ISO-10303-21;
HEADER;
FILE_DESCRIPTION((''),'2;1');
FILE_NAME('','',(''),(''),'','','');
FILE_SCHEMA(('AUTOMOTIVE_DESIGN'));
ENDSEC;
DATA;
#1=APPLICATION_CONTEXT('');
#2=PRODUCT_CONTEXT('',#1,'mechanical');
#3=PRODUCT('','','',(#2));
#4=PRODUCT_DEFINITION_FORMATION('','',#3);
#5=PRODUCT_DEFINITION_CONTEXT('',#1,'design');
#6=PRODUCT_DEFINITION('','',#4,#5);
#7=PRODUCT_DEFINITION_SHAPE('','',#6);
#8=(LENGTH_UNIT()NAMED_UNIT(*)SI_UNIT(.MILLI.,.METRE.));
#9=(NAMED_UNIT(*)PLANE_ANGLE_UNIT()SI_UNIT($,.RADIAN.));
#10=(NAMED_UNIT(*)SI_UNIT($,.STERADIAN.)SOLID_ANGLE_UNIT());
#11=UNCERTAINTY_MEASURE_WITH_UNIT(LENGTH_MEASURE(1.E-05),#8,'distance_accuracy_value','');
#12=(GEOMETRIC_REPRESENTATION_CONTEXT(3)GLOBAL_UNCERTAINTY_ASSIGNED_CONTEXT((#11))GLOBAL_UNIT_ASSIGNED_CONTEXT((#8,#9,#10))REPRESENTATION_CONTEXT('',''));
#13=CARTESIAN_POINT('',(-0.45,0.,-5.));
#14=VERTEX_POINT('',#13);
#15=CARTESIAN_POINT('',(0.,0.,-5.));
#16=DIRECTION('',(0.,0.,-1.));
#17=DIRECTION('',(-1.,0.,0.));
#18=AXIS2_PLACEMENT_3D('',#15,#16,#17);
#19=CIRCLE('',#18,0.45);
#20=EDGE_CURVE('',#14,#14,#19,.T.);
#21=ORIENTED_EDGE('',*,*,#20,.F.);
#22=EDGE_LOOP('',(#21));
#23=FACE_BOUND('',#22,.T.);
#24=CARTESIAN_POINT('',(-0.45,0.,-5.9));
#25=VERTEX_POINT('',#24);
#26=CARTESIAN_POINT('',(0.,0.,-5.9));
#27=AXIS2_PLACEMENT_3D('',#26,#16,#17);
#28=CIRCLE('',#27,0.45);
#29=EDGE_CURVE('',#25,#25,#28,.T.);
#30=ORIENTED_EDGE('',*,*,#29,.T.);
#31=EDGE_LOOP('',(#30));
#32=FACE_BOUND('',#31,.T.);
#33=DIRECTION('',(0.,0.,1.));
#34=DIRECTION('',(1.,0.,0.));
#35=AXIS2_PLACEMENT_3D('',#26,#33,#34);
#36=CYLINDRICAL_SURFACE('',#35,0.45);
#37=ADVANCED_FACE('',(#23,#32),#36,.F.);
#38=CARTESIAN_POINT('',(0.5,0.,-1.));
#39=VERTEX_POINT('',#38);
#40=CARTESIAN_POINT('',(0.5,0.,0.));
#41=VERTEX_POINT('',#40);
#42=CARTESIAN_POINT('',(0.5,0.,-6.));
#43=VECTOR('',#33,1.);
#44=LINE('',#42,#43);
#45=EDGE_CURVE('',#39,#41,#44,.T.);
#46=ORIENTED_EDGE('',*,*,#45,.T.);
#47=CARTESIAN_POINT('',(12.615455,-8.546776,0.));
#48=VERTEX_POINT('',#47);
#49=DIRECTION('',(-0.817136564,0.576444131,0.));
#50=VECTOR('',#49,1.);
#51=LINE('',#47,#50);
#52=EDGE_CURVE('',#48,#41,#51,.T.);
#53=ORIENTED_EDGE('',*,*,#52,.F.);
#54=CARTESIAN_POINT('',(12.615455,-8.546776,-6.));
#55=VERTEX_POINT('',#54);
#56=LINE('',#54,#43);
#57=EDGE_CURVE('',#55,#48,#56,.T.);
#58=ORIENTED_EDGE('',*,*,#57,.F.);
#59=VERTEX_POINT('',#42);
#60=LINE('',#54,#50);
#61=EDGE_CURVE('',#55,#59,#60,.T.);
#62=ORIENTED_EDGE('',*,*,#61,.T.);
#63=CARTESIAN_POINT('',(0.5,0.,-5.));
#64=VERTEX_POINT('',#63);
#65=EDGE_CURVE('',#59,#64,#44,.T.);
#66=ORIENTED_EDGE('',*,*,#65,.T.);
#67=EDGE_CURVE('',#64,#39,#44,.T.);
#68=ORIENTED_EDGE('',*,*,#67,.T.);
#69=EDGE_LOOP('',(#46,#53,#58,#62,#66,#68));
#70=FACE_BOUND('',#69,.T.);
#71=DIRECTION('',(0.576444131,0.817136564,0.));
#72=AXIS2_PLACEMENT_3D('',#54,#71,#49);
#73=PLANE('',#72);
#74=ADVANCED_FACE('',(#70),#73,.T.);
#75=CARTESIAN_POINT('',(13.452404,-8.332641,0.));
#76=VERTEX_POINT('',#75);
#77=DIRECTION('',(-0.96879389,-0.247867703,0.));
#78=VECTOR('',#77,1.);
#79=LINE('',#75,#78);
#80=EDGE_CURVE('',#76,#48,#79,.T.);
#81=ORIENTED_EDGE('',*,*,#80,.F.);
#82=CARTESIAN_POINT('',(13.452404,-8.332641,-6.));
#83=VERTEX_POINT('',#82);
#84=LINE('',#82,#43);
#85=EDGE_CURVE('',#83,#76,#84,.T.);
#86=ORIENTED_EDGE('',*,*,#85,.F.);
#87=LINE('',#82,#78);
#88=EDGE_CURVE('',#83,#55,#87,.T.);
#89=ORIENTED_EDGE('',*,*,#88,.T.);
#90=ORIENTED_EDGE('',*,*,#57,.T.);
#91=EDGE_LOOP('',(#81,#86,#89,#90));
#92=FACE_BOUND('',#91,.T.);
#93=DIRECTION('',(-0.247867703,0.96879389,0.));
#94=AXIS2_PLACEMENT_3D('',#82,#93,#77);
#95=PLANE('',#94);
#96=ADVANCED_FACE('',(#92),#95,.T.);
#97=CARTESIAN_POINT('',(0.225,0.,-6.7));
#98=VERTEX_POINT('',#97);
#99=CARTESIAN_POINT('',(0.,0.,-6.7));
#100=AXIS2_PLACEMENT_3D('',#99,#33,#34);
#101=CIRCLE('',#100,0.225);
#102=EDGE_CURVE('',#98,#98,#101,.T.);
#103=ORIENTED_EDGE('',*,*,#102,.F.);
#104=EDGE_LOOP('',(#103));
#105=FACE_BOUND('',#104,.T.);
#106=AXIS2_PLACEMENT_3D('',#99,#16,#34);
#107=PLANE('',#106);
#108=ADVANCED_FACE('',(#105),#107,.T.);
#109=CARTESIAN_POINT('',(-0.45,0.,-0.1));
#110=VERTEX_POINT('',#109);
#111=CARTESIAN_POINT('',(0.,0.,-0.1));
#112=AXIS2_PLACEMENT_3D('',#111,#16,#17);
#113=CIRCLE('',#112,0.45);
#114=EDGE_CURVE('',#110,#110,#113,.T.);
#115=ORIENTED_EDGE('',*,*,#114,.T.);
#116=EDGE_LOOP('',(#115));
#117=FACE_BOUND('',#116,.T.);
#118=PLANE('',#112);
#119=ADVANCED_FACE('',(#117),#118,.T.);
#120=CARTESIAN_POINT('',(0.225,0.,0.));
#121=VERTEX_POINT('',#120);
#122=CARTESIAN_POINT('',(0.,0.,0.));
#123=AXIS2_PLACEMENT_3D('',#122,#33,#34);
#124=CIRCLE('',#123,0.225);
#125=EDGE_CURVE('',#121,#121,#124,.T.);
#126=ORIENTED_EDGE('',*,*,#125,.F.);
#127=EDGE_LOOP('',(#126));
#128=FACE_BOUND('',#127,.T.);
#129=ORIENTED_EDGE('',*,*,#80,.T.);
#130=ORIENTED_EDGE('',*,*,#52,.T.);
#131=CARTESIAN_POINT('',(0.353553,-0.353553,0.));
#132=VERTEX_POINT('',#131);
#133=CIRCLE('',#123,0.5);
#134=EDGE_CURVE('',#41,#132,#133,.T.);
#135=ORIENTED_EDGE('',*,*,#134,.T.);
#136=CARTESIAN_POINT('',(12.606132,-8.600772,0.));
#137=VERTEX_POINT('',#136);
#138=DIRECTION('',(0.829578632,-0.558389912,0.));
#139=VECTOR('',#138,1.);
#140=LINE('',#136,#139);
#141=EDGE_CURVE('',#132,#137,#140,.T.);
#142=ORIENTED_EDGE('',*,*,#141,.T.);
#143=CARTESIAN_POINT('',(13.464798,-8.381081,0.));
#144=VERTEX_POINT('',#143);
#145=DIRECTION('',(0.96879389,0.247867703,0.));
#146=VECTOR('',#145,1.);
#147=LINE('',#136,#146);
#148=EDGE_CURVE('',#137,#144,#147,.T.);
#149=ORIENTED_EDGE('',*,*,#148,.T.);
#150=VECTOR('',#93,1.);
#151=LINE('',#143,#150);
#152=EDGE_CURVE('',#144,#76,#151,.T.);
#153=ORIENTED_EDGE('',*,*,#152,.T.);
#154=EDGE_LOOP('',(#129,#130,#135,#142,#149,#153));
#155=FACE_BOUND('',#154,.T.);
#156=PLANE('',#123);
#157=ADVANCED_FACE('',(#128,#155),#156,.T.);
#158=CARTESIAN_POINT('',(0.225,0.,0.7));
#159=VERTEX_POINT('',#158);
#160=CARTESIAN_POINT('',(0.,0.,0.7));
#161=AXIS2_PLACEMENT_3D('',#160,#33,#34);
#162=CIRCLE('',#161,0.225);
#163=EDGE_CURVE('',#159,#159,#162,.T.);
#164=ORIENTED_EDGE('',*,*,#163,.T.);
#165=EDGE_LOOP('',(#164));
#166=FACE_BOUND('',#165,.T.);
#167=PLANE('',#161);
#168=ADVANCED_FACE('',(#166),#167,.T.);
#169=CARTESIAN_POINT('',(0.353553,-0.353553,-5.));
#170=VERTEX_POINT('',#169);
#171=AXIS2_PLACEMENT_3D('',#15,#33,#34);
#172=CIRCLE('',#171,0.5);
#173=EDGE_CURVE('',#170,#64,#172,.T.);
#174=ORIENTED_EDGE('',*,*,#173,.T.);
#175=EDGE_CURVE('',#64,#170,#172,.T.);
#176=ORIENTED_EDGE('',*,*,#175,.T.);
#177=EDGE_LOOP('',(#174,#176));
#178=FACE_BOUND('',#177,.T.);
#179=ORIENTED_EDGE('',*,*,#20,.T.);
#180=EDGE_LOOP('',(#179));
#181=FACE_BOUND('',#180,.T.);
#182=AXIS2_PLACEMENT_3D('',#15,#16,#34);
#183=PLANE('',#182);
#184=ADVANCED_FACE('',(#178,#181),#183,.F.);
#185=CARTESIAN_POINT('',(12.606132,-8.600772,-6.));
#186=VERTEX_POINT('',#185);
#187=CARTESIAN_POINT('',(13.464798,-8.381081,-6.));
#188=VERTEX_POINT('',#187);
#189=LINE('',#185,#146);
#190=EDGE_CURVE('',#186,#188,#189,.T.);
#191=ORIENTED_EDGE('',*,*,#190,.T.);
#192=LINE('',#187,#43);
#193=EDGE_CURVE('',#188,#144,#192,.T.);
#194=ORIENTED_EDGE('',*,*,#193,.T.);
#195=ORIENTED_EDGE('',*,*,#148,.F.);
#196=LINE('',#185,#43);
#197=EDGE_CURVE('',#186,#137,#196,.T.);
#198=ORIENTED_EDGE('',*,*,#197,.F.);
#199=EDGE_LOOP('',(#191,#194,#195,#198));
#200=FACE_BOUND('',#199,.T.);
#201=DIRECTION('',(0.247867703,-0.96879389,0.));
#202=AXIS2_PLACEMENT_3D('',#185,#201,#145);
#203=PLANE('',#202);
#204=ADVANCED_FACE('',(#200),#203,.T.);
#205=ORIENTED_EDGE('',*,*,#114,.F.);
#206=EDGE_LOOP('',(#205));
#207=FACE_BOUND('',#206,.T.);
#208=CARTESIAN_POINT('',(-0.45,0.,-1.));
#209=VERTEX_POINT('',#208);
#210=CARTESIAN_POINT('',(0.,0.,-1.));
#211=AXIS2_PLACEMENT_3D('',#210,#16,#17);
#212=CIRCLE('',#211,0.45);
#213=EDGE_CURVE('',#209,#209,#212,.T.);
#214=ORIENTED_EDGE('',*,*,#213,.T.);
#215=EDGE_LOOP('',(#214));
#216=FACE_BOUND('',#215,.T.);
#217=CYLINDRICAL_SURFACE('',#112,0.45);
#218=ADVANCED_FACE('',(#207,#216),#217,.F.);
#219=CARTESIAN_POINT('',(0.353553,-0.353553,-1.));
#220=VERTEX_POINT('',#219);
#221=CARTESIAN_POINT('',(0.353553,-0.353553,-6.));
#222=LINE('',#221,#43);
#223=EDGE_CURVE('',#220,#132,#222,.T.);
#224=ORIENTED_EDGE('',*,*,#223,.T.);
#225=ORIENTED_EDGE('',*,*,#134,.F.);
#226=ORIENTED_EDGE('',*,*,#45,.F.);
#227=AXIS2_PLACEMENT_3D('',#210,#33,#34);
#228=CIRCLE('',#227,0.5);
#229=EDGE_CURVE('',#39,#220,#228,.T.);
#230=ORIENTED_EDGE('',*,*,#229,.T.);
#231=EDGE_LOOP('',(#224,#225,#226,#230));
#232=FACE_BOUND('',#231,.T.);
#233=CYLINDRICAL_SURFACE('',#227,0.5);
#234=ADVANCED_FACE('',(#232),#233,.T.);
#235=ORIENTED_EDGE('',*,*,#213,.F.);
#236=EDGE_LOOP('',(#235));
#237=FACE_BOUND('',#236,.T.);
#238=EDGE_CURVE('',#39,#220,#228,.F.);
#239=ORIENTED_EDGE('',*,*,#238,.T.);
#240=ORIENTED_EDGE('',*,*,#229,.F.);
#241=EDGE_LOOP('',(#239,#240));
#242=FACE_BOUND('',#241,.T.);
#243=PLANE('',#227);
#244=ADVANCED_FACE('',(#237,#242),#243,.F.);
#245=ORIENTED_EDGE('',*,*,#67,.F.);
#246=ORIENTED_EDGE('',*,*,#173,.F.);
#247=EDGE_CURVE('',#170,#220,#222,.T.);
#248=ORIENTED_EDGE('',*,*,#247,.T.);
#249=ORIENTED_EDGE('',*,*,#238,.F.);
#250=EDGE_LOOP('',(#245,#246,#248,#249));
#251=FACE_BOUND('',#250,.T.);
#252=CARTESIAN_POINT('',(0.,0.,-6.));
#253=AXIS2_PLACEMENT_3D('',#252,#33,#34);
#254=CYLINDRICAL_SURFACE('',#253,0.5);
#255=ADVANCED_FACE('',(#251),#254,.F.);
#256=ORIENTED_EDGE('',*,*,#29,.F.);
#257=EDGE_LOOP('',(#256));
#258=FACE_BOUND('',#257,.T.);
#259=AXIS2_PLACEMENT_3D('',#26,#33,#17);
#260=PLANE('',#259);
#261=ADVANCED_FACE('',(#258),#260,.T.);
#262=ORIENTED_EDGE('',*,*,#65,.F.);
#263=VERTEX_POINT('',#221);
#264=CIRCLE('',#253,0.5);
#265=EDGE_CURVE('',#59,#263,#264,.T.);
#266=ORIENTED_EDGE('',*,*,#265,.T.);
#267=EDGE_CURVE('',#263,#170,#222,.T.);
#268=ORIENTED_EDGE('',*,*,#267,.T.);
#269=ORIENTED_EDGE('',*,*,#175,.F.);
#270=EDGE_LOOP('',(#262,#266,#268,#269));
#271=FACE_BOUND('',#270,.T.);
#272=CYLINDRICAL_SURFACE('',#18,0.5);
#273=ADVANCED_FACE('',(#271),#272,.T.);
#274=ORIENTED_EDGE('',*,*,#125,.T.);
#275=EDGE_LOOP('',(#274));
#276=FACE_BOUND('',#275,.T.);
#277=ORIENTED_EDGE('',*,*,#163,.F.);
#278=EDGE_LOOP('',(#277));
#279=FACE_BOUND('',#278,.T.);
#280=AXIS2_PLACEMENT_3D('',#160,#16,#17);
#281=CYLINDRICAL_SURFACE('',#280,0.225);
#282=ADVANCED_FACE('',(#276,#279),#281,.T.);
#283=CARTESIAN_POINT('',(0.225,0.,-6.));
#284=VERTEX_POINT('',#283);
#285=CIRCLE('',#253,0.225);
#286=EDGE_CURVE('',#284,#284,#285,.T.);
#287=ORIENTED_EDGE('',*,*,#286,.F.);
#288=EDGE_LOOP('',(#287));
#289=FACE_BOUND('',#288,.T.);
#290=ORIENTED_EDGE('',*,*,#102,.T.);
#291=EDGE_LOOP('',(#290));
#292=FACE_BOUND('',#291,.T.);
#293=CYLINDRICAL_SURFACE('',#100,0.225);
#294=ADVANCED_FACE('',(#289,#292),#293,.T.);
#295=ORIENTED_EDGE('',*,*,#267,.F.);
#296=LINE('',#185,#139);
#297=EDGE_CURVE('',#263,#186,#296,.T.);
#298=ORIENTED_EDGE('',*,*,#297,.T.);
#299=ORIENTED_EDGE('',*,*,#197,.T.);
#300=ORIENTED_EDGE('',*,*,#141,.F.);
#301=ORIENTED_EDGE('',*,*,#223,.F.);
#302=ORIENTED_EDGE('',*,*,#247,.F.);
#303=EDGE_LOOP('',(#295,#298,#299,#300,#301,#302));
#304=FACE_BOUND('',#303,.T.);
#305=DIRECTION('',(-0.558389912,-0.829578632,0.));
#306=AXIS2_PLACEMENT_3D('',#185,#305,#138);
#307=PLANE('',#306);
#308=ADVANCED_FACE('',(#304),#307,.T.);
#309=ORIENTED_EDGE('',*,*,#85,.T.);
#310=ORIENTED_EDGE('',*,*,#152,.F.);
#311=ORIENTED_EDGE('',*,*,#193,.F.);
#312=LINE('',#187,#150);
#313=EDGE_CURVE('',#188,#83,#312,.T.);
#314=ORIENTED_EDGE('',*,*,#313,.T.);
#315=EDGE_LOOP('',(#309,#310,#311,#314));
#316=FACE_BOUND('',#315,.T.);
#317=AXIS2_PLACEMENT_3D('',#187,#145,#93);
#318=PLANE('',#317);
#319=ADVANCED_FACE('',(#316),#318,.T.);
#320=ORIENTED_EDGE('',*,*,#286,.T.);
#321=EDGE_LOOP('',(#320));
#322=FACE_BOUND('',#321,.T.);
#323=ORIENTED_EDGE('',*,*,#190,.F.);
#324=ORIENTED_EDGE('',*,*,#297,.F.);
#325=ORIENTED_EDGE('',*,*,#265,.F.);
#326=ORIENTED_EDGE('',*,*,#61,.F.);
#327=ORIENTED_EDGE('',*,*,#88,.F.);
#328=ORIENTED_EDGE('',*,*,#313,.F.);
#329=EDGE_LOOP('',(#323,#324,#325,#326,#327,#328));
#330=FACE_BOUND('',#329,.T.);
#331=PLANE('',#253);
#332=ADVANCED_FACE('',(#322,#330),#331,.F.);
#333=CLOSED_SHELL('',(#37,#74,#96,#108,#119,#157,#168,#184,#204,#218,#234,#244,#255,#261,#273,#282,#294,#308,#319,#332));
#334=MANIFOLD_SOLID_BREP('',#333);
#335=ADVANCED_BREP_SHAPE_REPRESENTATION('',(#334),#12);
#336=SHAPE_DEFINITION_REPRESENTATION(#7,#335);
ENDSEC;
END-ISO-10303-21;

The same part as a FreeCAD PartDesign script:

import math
import FreeCAD as App
import Part
import Sketcher

doc = App.newDocument("Part")
params = doc.addObject("Spreadsheet::Sheet", "Params")
for row, (alias, value) in enumerate([
    ("sketch1_diameter", "1 mm"),
    ("pad1_length", "1 mm"),
    ("sketch2_diameter", "0.9 mm"),
    ("pocket1_length", "0.9 mm"),
    ("sketch3_diameter", "0.45 mm"),
    ("pad2_length", "0.7 mm"),
    ("sketch4_radius", "0.5 mm"),
    ("sketch4_length", "0.05 mm"),
    ("pad3_length", "6 mm"),
], start=1):
    params.set(f"A{row}", alias)
    params.set(f"B{row}", "=" + value)
    params.setAlias(f"B{row}", alias)

body = doc.addObject("PartDesign::Body", "Body")

# Sketch on XY plane
sketch1 = doc.addObject("Sketcher::SketchObject", "Sketch")
body.addObject(sketch1)
sketch1.AttachmentSupport = (doc.XY_Plane, [""])
sketch1.MapMode = "FlatFace"
sketch1.addGeometry(Part.Circle(App.Vector(0, 0, 0), App.Vector(0, 0, 1), 0.5), False)
sketch1.addConstraint([
    Sketcher.Constraint("Coincident", 0, 3, -1, 1),
    Sketcher.Constraint("Diameter", 0, 1.0),
])
sketch1.setExpression("Constraints[1]", "Params.sketch1_diameter")
pad1 = doc.addObject("PartDesign::Pad", "Pad")
body.addObject(pad1)
pad1.Profile = sketch1
pad1.setExpression("Length", "Params.pad1_length")
pad1.Reversed = True

# Sketch on XY plane
sketch2 = doc.addObject("Sketcher::SketchObject", "Sketch001")
body.addObject(sketch2)
sketch2.AttachmentSupport = (doc.XY_Plane, [""])
sketch2.MapMode = "FlatFace"
sketch2.AttachmentOffset = App.Placement(App.Vector(0, 0, -1), App.Rotation())
sketch2.addGeometry(Part.Circle(App.Vector(0, 0, 0), App.Vector(0, 0, 1), 0.45), False)
sketch2.addConstraint([
    Sketcher.Constraint("Coincident", 0, 3, -1, 1),
    Sketcher.Constraint("Diameter", 0, 0.9),
])
sketch2.setExpression("Constraints[1]", "Params.sketch2_diameter")
pocket1 = doc.addObject("PartDesign::Pocket", "Pocket")
body.addObject(pocket1)
pocket1.Profile = sketch2
pocket1.setExpression("Length", "Params.pocket1_length")
pocket1.Reversed = True

# Sketch on XY plane
sketch3 = doc.addObject("Sketcher::SketchObject", "Sketch002")
body.addObject(sketch3)
sketch3.AttachmentSupport = (doc.XY_Plane, [""])
sketch3.MapMode = "FlatFace"
sketch3.addGeometry(Part.Circle(App.Vector(0, 0, 0), App.Vector(0, 0, 1), 0.225), False)
sketch3.addConstraint([
    Sketcher.Constraint("Coincident", 0, 3, -1, 1),
    Sketcher.Constraint("Diameter", 0, 0.45),
])
sketch3.setExpression("Constraints[1]", "Params.sketch3_diameter")
pad2 = doc.addObject("PartDesign::Pad", "Pad001")
body.addObject(pad2)
pad2.Profile = sketch3
pad2.setExpression("Length", "Params.pad2_length")

# Sketch on XY plane
sketch4 = doc.addObject("Sketcher::SketchObject", "Sketch003")
body.addObject(sketch4)
sketch4.AttachmentSupport = (doc.XY_Plane, [""])
sketch4.MapMode = "FlatFace"
sketch4.addGeometry([
    Part.LineSegment(App.Vector(12.615455, -8.546776, 0), App.Vector(0.5, 0, 0)),  # 0
    Part.ArcOfCircle(Part.Circle(App.Vector(0, 0, 0), App.Vector(0, 0, 1), 0.5), math.radians(-45), math.radians(0)),  # 1
    Part.LineSegment(App.Vector(0.353553, -0.353553, 0), App.Vector(12.606132, -8.600772, 0)),  # 2
    Part.LineSegment(App.Vector(12.606132, -8.600772, 0), App.Vector(13.464798, -8.381081, 0)),  # 3
    Part.LineSegment(App.Vector(13.464798, -8.381081, 0), App.Vector(13.452404, -8.332641, 0)),  # 4
    Part.LineSegment(App.Vector(13.452404, -8.332641, 0), App.Vector(12.615455, -8.546776, 0)),  # 5
], False)
sketch4.addConstraint([
    Sketcher.Constraint("Coincident", 0, 2, 1, 2),
    Sketcher.Constraint("Coincident", 1, 1, 2, 1),
    Sketcher.Constraint("Coincident", 2, 2, 3, 1),
    Sketcher.Constraint("Coincident", 3, 2, 4, 1),
    Sketcher.Constraint("Coincident", 4, 2, 5, 1),
    Sketcher.Constraint("Coincident", 5, 2, 0, 1),
    Sketcher.Constraint("Coincident", 1, 3, -1, 1),
    Sketcher.Constraint("PointOnObject", 0, 2, -1),
    Sketcher.Constraint("Radius", 1, 0.5),
    Sketcher.Constraint("Distance", 4, 0.05),
    Sketcher.Constraint("DistanceX", 1, 1, 5, 2, 12.261902),
    Sketcher.Constraint("Distance", 0, 14.82672),
    Sketcher.Constraint("Distance", 2, 14.769641),
    Sketcher.Constraint("Distance", 5, 0.863908),
    Sketcher.Constraint("DistanceX", -1, 1, 2, 2, 12.606132),
    Sketcher.Constraint("DistanceY", 2, 2, -1, 1, 8.600772),
    Sketcher.Constraint("DistanceY", 3, 2, -1, 1, 8.381081),
    Sketcher.Constraint("DistanceY", 4, 2, -1, 1, 8.332641),
])
sketch4.setExpression("Constraints[8]", "Params.sketch4_radius")
sketch4.setExpression("Constraints[9]", "Params.sketch4_length")
pad3 = doc.addObject("PartDesign::Pad", "Pad002")
body.addObject(pad3)
pad3.Profile = sketch4
pad3.setExpression("Length", "Params.pad3_length")
pad3.Reversed = True
doc.recompute()

datumplane = doc.addObject("PartDesign::Plane", "DatumPlane")
body.addObject(datumplane)
datumplane.AttachmentSupport = (doc.XY_Plane, [""])
datumplane.MapMode = "FlatFace"
datumplane.AttachmentOffset = App.Placement(App.Vector(0, 0, -3), App.Rotation())
mirrored = doc.addObject("PartDesign::Mirrored", "Mirrored")
body.addObject(mirrored)
mirrored.Originals = [pad1, pocket1, pad2]
mirrored.MirrorPlane = (datumplane, [""])
body.Tip = mirrored

doc.recompute()
